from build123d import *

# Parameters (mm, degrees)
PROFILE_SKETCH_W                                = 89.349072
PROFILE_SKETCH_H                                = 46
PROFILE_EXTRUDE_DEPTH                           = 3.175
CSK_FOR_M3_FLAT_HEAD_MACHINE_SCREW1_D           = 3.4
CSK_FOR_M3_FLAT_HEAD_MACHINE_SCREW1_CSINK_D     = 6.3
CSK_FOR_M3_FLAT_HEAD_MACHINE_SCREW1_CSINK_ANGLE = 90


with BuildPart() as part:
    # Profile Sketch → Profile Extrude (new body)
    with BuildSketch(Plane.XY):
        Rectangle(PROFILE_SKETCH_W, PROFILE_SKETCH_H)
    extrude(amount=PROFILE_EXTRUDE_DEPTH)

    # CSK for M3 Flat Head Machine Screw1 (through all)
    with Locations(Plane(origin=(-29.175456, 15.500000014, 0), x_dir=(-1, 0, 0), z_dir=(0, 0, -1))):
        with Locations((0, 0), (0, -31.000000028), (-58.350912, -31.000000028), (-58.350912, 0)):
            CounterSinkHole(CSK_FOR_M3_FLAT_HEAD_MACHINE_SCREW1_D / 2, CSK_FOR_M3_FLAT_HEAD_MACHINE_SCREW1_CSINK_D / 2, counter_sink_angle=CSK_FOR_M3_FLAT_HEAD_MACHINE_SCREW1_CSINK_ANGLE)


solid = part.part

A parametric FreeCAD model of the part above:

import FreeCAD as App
import Part
import Sketcher

V = App.Vector
Q = App.Units.Quantity


def add_polygon(sketch, points):
    """Adds a closed chain of lines whose ends are joined by coincident constraints."""
    first, n = sketch.GeometryCount, len(points)
    for a, b in zip(points, points[1:] + points[:1]):
        sketch.addGeometry(Part.LineSegment(App.Vector(*a, 0), App.Vector(*b, 0)), False)
    for i in range(n):
        sketch.addConstraint(Sketcher.Constraint("Coincident", first + i, 2, first + (i + 1) % n, 1))

doc = App.newDocument("Part")
body = doc.addObject("PartDesign::Body", "Body")

# Sketch on XY plane
sketch1 = body.newObject("Sketcher::SketchObject", "Sketch")
sketch1.AttachmentSupport = (doc.getObject("XY_Plane"), [""])
sketch1.MapMode = "FlatFace"
add_polygon(sketch1, [(-45, 23), (-45, -23), (45, -23), (45, 23)])  # lines 0-3
sketch1.addConstraint([
    Sketcher.Constraint("Vertical", 0),
    Sketcher.Constraint("Horizontal", 1),
    Sketcher.Constraint("Vertical", 2),
    Sketcher.Constraint("Horizontal", 3),
    Sketcher.Constraint("Symmetric", 0, 2, 2, 2, -1, 1),
    Sketcher.Constraint("DistanceY", 0, 2, 0, 1, Q("46 mm")),
    Sketcher.Constraint("DistanceX", 1, 1, 1, 2, Q("89.349072 mm")),
])
pad1 = body.newObject("PartDesign::Pad", "Pad")
pad1.Profile = sketch1
pad1.Length = 3.175

# Sketch on XY plane
sketch2 = body.newObject("Sketcher::SketchObject", "Sketch001")
sketch2.AttachmentSupport = (doc.getObject("XY_Plane"), [""])
sketch2.MapMode = "FlatFace"
sketch2.addGeometry([
    Part.Circle(V(-29.2, 15.5, 0), V(0, 0, 1), 1.7),
    Part.Circle(V(-29.2, -15.5, 0), V(0, 0, 1), 1.7),
    Part.Circle(V(29.2, -15.5, 0), V(0, 0, 1), 1.7),
    Part.Circle(V(29.2, 15.5, 0), V(0, 0, 1), 1.7),
], False)
sketch2.addConstraint([
    Sketcher.Constraint("Equal", 0, 1),
    Sketcher.Constraint("Equal", 1, 2),
    Sketcher.Constraint("Equal", 2, 3),
    Sketcher.Constraint("Symmetric", 0, 3, 2, 3, -1, 1),
    Sketcher.Constraint("Symmetric", 1, 3, 3, 3, -1, 1),
    Sketcher.Constraint("Symmetric", 1, 3, 2, 3, -2),
    Sketcher.Constraint("Diameter", 0, Q("3.4 mm")),
    Sketcher.Constraint("DistanceY", 1, 3, 0, 3, Q("31 mm")),
    Sketcher.Constraint("DistanceX", 0, 3, -1, 1, Q("29.175456 mm")),
])
doc.recompute()
hole = body.newObject("PartDesign::Hole", "Hole")
hole.Profile = sketch2
hole.ThreadType = "None"
hole.Diameter = 3.4
hole.DepthType = "ThroughAll"
hole.HoleCutType = "Countersink"
hole.HoleCutDiameter = 6.3
hole.HoleCutCountersinkAngle = 90
hole.Reversed = True

doc.recompute()
